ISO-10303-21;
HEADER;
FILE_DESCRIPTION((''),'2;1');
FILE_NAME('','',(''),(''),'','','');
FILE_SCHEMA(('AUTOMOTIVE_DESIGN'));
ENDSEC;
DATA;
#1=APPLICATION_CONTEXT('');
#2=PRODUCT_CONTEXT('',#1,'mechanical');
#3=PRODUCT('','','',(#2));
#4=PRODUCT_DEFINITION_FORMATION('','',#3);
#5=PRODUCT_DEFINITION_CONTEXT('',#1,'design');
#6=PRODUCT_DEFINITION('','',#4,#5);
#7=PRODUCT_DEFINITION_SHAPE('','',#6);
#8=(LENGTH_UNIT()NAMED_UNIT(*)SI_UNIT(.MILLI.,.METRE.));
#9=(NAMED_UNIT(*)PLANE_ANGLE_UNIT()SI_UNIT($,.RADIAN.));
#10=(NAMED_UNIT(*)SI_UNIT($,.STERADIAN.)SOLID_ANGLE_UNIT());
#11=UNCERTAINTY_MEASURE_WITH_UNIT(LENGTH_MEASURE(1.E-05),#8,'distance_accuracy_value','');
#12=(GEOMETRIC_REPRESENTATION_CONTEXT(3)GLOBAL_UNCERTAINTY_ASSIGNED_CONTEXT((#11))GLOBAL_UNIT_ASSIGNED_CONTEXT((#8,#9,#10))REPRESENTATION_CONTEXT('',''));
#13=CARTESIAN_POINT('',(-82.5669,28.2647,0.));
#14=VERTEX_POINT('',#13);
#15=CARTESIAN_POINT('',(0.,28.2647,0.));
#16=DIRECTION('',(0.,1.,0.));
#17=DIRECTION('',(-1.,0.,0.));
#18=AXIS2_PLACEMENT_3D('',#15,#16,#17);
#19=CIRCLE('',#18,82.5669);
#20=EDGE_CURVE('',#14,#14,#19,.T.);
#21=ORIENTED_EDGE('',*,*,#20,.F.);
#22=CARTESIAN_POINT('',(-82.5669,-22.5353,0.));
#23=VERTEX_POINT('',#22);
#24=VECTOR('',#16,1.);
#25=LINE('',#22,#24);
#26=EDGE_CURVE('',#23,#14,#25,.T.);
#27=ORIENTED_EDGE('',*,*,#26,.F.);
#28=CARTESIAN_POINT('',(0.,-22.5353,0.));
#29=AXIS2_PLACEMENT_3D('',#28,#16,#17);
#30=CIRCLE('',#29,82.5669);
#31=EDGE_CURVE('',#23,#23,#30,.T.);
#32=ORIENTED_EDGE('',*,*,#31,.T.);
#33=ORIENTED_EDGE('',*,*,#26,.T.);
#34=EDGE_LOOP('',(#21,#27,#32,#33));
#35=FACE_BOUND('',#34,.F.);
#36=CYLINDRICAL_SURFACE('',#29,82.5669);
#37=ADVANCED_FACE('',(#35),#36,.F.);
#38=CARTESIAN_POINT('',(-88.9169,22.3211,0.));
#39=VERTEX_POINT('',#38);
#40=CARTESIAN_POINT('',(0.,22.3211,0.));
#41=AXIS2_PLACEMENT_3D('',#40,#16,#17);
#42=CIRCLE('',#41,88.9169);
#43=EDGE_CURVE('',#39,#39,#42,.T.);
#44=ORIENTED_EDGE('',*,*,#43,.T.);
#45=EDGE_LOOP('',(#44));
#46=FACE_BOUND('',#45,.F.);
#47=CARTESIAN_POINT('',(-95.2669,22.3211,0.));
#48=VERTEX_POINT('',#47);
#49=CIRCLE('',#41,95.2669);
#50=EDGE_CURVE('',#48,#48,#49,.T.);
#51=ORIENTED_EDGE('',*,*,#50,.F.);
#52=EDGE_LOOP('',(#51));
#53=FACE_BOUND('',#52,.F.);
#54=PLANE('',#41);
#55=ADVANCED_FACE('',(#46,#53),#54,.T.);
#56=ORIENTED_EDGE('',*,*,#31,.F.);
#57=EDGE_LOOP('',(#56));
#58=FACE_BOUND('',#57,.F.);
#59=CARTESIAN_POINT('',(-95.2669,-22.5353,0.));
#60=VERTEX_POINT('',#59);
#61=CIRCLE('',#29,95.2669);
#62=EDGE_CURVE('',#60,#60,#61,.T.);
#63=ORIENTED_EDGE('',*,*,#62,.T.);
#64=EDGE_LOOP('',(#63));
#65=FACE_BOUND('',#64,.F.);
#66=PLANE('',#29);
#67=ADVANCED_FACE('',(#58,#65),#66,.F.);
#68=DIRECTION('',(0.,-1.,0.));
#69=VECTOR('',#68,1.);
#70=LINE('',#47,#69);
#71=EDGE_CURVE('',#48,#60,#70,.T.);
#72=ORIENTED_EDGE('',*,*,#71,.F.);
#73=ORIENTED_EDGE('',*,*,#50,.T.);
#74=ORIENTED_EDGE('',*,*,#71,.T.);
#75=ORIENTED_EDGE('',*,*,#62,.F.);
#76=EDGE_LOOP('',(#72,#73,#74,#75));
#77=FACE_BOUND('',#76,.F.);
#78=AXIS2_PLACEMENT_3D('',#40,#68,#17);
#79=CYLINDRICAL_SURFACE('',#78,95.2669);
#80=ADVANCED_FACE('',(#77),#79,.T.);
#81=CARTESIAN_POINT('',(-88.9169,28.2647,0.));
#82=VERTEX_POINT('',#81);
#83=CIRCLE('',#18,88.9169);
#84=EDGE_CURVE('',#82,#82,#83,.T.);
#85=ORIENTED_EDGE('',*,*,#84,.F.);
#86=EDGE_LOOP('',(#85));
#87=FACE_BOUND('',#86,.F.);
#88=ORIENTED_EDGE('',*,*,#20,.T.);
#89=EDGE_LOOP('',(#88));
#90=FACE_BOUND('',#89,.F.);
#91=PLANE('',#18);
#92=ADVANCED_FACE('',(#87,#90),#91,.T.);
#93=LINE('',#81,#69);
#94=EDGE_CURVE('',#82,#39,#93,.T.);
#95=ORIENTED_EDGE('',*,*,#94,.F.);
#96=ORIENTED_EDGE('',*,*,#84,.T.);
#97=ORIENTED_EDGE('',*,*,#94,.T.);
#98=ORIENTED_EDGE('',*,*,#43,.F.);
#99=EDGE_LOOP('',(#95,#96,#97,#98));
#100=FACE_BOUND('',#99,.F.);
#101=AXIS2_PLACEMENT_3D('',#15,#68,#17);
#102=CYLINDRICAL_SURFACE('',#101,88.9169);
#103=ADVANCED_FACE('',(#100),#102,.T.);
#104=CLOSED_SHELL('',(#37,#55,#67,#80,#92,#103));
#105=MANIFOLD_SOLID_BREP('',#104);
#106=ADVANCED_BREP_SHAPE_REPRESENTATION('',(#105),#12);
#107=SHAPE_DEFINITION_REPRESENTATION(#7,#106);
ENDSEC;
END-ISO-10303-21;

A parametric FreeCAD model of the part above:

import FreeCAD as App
import Part
import Sketcher

V = App.Vector
Q = App.Units.Quantity

doc = App.newDocument("Part")
body = doc.addObject("PartDesign::Body", "Body")

# Sketch on XY plane
sketch1 = doc.addObject("Sketcher::SketchObject", "Sketch")
body.addObject(sketch1)
sketch1.AttachmentSupport = (doc.XY_Plane, [""])
sketch1.MapMode = "FlatFace"
sketch1.addGeometry([
    Part.LineSegment(V(-83, -23, 0), V(-83, 28, 0)),  # 0
    Part.LineSegment(V(-83, 28, 0), V(-89, 28, 0)),  # 1
    Part.LineSegment(V(-89, 28, 0), V(-89, 22, 0)),  # 2
    Part.LineSegment(V(-89, 22, 0), V(-95, 22, 0)),  # 3
    Part.LineSegment(V(-95, 22, 0), V(-95, -23, 0)),  # 4
    Part.LineSegment(V(-95, -23, 0), V(-83, -23, 0)),  # 5
], False)
sketch1.addConstraint([
    Sketcher.Constraint("Coincident", 0, 2, 1, 1),
    Sketcher.Constraint("Coincident", 1, 2, 2, 1),
    Sketcher.Constraint("Coincident", 2, 2, 3, 1),
    Sketcher.Constraint("Coincident", 3, 2, 4, 1),
    Sketcher.Constraint("Coincident", 4, 2, 5, 1),
    Sketcher.Constraint("Coincident", 5, 2, 0, 1),
    Sketcher.Constraint("Vertical", 0),
    Sketcher.Constraint("Horizontal", 1),
    Sketcher.Constraint("Vertical", 2),
    Sketcher.Constraint("Horizontal", 3),
    Sketcher.Constraint("Vertical", 4),
    Sketcher.Constraint("Horizontal", 5),
    Sketcher.Constraint("Equal", 1, 3),
    Sketcher.Constraint("DistanceY", 0, 1, 0, 2, Q("2 in")),
    Sketcher.Constraint("DistanceX", 1, 2, 1, 1, Q("0.25 in")),
    Sketcher.Constraint("DistanceY", 2, 2, 2, 1, Q("0.234 in")),
    Sketcher.Constraint("DistanceX", 3, 2, -1, 1, 95.267),
    Sketcher.Constraint("DistanceY", -1, 1, 0, 2, 28.2647),
])
revolution = doc.addObject("PartDesign::Revolution", "Revolution")
body.addObject(revolution)
revolution.Profile = sketch1
revolution.ReferenceAxis = (sketch1, ["V_Axis"])
revolution.Angle = 360

doc.recompute()
